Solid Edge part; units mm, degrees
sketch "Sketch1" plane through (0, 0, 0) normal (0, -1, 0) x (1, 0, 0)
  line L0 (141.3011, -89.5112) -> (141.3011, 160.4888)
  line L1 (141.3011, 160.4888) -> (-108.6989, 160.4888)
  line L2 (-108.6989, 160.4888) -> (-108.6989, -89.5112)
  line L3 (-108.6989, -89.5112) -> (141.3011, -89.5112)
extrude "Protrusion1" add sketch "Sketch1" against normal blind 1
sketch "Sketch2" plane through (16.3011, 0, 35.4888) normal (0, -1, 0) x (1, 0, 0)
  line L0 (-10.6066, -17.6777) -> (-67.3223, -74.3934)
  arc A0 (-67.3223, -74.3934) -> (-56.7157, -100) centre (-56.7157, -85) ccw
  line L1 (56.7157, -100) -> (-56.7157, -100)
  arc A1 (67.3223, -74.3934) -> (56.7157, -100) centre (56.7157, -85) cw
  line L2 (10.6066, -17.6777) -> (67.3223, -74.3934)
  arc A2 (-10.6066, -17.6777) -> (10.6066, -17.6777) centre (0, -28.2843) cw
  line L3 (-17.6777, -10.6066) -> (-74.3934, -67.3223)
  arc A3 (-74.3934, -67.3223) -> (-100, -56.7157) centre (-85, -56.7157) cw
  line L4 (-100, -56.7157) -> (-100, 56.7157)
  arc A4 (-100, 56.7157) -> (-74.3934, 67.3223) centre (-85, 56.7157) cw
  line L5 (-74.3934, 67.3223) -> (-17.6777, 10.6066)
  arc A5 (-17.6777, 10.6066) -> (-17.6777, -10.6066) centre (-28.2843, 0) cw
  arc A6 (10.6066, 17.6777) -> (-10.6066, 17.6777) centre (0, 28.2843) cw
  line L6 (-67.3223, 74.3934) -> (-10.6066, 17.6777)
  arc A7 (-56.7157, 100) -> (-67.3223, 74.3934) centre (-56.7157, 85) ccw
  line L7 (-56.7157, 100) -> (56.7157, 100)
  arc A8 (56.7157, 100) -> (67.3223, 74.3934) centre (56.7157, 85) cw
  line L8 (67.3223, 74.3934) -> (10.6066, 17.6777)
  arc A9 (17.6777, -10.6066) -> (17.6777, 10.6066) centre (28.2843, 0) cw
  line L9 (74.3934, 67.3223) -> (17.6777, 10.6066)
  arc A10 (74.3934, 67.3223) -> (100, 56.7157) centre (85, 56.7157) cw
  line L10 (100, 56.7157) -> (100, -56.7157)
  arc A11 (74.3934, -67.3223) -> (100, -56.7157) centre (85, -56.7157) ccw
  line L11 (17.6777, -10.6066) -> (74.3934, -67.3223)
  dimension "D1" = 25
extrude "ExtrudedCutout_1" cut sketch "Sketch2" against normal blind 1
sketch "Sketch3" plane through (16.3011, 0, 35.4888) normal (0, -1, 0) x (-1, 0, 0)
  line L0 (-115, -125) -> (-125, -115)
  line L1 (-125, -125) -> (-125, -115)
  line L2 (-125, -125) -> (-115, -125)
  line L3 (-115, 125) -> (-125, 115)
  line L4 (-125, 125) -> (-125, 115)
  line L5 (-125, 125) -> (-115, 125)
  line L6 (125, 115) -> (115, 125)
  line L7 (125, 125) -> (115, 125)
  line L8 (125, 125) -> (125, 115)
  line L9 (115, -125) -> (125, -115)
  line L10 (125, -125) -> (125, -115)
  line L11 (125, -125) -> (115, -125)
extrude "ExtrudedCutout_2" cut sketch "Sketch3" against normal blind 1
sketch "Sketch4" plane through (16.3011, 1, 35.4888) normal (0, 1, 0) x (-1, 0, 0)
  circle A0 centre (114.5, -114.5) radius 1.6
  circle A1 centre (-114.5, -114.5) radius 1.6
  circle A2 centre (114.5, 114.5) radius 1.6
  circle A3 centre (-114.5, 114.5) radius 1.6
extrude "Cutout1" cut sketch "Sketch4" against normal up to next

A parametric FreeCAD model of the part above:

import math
import FreeCAD as App
import Part
import Sketcher

V = App.Vector

doc = App.newDocument("Part")
params = doc.addObject("Spreadsheet::Sheet", "Params")
for row, (alias, value) in enumerate([
    ("sketch1_width", "250 mm"),
    ("pad1_length", "1 mm"),
    ("sketch2_radius", "15 mm"),
    ("pocket1_length", "1 mm"),
    ("sketch3_width", "10 mm"),
    ("pocket2_length", "1 mm"),
    ("sketch4_diameter", "3.2 mm"),
    ("pocket3_length", "1 mm"),
], start=1):
    params.set(f"A{row}", alias)
    params.set(f"B{row}", "=" + value)
    params.setAlias(f"B{row}", alias)

body = doc.addObject("PartDesign::Body", "Body")

# Sketch on XZ plane
sketch1 = body.newObject("Sketcher::SketchObject", "Sketch")
sketch1.AttachmentSupport = (doc.getObject("XZ_Plane"), [""])
sketch1.MapMode = "FlatFace"
sketch1.addGeometry([
    Part.LineSegment(V(-109, -90, 0), V(141, -90, 0)),
    Part.LineSegment(V(141, -90, 0), V(141, 160, 0)),
    Part.LineSegment(V(141, 160, 0), V(-109, 160, 0)),
    Part.LineSegment(V(-109, 160, 0), V(-109, -90, 0)),
], False)
sketch1.addConstraint([
    Sketcher.Constraint("Coincident", 0, 2, 1, 1),
    Sketcher.Constraint("Coincident", 1, 2, 2, 1),
    Sketcher.Constraint("Coincident", 2, 2, 3, 1),
    Sketcher.Constraint("Coincident", 3, 2, 0, 1),
    Sketcher.Constraint("Horizontal", 0),
    Sketcher.Constraint("Vertical", 1),
    Sketcher.Constraint("Horizontal", 2),
    Sketcher.Constraint("Vertical", 3),
    Sketcher.Constraint("Equal", 2, 1),
    Sketcher.Constraint("DistanceX", 0, 1, 0, 2, 250.0),
    Sketcher.Constraint("DistanceX", -1, 1, 0, 2, 141.301),
    Sketcher.Constraint("DistanceY", 0, 2, -1, 1, 89.5112),
])
sketch1.setExpression("Constraints[9]", "Params.sketch1_width")
pad1 = body.newObject("PartDesign::Pad", "Pad")
pad1.Profile = sketch1
pad1.setExpression("Length", "Params.pad1_length")
pad1.Reversed = True

# Sketch on XZ plane
sketch2 = body.newObject("Sketcher::SketchObject", "Sketch001")
sketch2.AttachmentSupport = (doc.getObject("XZ_Plane"), [""])
sketch2.MapMode = "FlatFace"
sketch2.addGeometry([
    Part.ArcOfCircle(Part.Circle(V(16, 7, 0), V(0, 0, 1), 15), math.radians(45), math.radians(135)),  # 0
    Part.LineSegment(V(6, 18, 0), V(-51, -39, 0)),  # 1
    Part.ArcOfCircle(Part.Circle(V(-40, -50, 0), V(0, 0, 1), 15), math.radians(135), math.radians(270)),  # 2
    Part.LineSegment(V(-40, -65, 0), V(73, -65, 0)),  # 3
    Part.ArcOfCircle(Part.Circle(V(73, -50, 0), V(0, 0, 1), 15), math.radians(-90), math.radians(45)),  # 4
    Part.LineSegment(V(84, -39, 0), V(27, 18, 0)),  # 5
    Part.LineSegment(V(-58, -32, 0), V(-1, 25, 0)),  # 6
    Part.ArcOfCircle(Part.Circle(V(-12, 35, 0), V(0, 0, 1), 15), math.radians(-45), math.radians(45)),  # 7
    Part.LineSegment(V(-1, 46, 0), V(-58, 103, 0)),  # 8
    Part.ArcOfCircle(Part.Circle(V(-69, 92, 0), V(0, 0, 1), 15), math.radians(45), math.radians(180)),  # 9
    Part.LineSegment(V(-84, 92, 0), V(-84, -21, 0)),  # 10
    Part.ArcOfCircle(Part.Circle(V(-69, -21, 0), V(0, 0, 1), 15), math.radians(180), math.radians(315)),  # 11
    Part.ArcOfCircle(Part.Circle(V(16, 64, 0), V(0, 0, 1), 15), math.radians(-135), math.radians(-45)),  # 12
    Part.LineSegment(V(27, 53, 0), V(84, 110, 0)),  # 13
    Part.ArcOfCircle(Part.Circle(V(73, 120, 0), V(0, 0, 1), 15), math.radians(-45), math.radians(90)),  # 14
    Part.LineSegment(V(73, 135, 0), V(-40, 135, 0)),  # 15
    Part.ArcOfCircle(Part.Circle(V(-40, 120, 0), V(0, 0, 1), 15), math.radians(90), math.radians(225)),  # 16
    Part.LineSegment(V(-51, 110, 0), V(6, 53, 0)),  # 17
    Part.ArcOfCircle(Part.Circle(V(45, 35, 0), V(0, 0, 1), 15), math.radians(135), math.radians(225)),  # 18
    Part.LineSegment(V(34, 25, 0), V(91, -32, 0)),  # 19
    Part.ArcOfCircle(Part.Circle(V(101, -21, 0), V(0, 0, 1), 15), math.radians(-135), math.radians(0)),  # 20
    Part.LineSegment(V(116, -21, 0), V(116, 92, 0)),  # 21
    Part.ArcOfCircle(Part.Circle(V(101, 92, 0), V(0, 0, 1), 15), math.radians(0), math.radians(135)),  # 22
    Part.LineSegment(V(91, 103, 0), V(34, 46, 0)),  # 23
], False)
sketch2.addConstraint([
    Sketcher.Constraint("Tangent", 0, 2, 1, 1),
    Sketcher.Constraint("Tangent", 1, 2, 2, 1),
    Sketcher.Constraint("Tangent", 2, 2, 3, 1),
    Sketcher.Constraint("Tangent", 3, 2, 4, 1),
    Sketcher.Constraint("Tangent", 4, 2, 5, 1),
    Sketcher.Constraint("Tangent", 5, 2, 0, 1),
    Sketcher.Constraint("Tangent", 6, 2, 7, 1),
    Sketcher.Constraint("Tangent", 7, 2, 8, 1),
    Sketcher.Constraint("Tangent", 8, 2, 9, 1),
    Sketcher.Constraint("Tangent", 9, 2, 10, 1),
    Sketcher.Constraint("Tangent", 10, 2, 11, 1),
    Sketcher.Constraint("Tangent", 11, 2, 6, 1),
    Sketcher.Constraint("Tangent", 12, 2, 13, 1),
    Sketcher.Constraint("Tangent", 13, 2, 14, 1),
    Sketcher.Constraint("Tangent", 14, 2, 15, 1),
    Sketcher.Constraint("Tangent", 15, 2, 16, 1),
    Sketcher.Constraint("Tangent", 16, 2, 17, 1),
    Sketcher.Constraint("Tangent", 17, 2, 12, 1),
    Sketcher.Constraint("Tangent", 18, 2, 19, 1),
    Sketcher.Constraint("Tangent", 19, 2, 20, 1),
    Sketcher.Constraint("Tangent", 20, 2, 21, 1),
    Sketcher.Constraint("Tangent", 21, 2, 22, 1),
    Sketcher.Constraint("Tangent", 22, 2, 23, 1),
    Sketcher.Constraint("Tangent", 23, 2, 18, 1),
    Sketcher.Constraint("Horizontal", 3),
    Sketcher.Constraint("Vertical", 10),
    Sketcher.Constraint("Horizontal", 15),
    Sketcher.Constraint("Vertical", 21),
    Sketcher.Constraint("Equal", 0, 2),
    Sketcher.Constraint("Equal", 2, 4),
    Sketcher.Constraint("Equal", 4, 7),
    Sketcher.Constraint("Equal", 7, 9),
    Sketcher.Constraint("Equal", 9, 11),
    Sketcher.Constraint("Equal", 11, 12),
    Sketcher.Constraint("Equal", 12, 14),
    Sketcher.Constraint("Equal", 14, 16),
    Sketcher.Constraint("Equal", 16, 18),
    Sketcher.Constraint("Equal", 18, 20),
    Sketcher.Constraint("Equal", 20, 22),
    Sketcher.Constraint("Perpendicular", 1, 5),
    Sketcher.Constraint("Perpendicular", 5, 6),
    Sketcher.Constraint("Perpendicular", 6, 8),
    Sketcher.Constraint("Perpendicular", 8, 13),
    Sketcher.Constraint("Perpendicular", 13, 17),
    Sketcher.Constraint("Parallel", 17, 19),
    Sketcher.Constraint("Perpendicular", 19, 23),
    Sketcher.Constraint("Horizontal", 7, 3, 18, 3),
    Sketcher.Constraint("Horizontal", 11, 3, 20, 3),
    Sketcher.Constraint("Horizontal", 9, 3, 22, 3),
    Sketcher.Constraint("Vertical", 0, 3, 12, 3),
    Sketcher.Constraint("Vertical", 4, 3, 14, 3),
    Sketcher.Constraint("Equal", 15, 10),
    Sketcher.Constraint("Radius", 0, 15.0),
    Sketcher.Constraint("DistanceY", 2, 3, 7, 3, 85.0),
    Sketcher.Constraint("DistanceX", 7, 3, 4, 3, 85.0),
    Sketcher.Constraint("DistanceY", 11, 3, 12, 3, 85.0),
    Sketcher.Constraint("DistanceX", 0, 3, 20, 3, 85.0),
    Sketcher.Constraint("Distance", 1, 80.208),
    Sketcher.Constraint("DistanceX", -1, 1, 0, 3, 16.301),
    Sketcher.Constraint("DistanceY", 11, 3, -1, 1, 21.227),
])
sketch2.setExpression("Constraints[52]", "Params.sketch2_radius")
pocket1 = body.newObject("PartDesign::Pocket", "Pocket")
pocket1.Profile = sketch2
pocket1.setExpression("Length", "Params.pocket1_length")

# Sketch on XZ plane
sketch3 = body.newObject("Sketcher::SketchObject", "Sketch002")
sketch3.AttachmentSupport = (doc.getObject("XZ_Plane"), [""])
sketch3.MapMode = "FlatFace"
sketch3.addGeometry([
    Part.LineSegment(V(141, 160, 0), V(131, 160, 0)),  # 0
    Part.LineSegment(V(131, 160, 0), V(141, 150, 0)),  # 1
    Part.LineSegment(V(141, 150, 0), V(141, 160, 0)),  # 2
    Part.LineSegment(V(141, -80, 0), V(131, -90, 0)),  # 3
    Part.LineSegment(V(131, -90, 0), V(141, -90, 0)),  # 4
    Part.LineSegment(V(141, -90, 0), V(141, -80, 0)),  # 5
    Part.LineSegment(V(-99, -90, 0), V(-109, -80, 0)),  # 6
    Part.LineSegment(V(-109, -80, 0), V(-109, -90, 0)),  # 7
    Part.LineSegment(V(-109, -90, 0), V(-99, -90, 0)),  # 8
    Part.LineSegment(V(-109, 150, 0), V(-99, 160, 0)),  # 9
    Part.LineSegment(V(-99, 160, 0), V(-109, 160, 0)),  # 10
    Part.LineSegment(V(-109, 160, 0), V(-109, 150, 0)),  # 11
], False)
sketch3.addConstraint([
    Sketcher.Constraint("Coincident", 0, 2, 1, 1),
    Sketcher.Constraint("Coincident", 1, 2, 2, 1),
    Sketcher.Constraint("Coincident", 2, 2, 0, 1),
    Sketcher.Constraint("Coincident", 3, 2, 4, 1),
    Sketcher.Constraint("Coincident", 4, 2, 5, 1),
    Sketcher.Constraint("Coincident", 5, 2, 3, 1),
    Sketcher.Constraint("Coincident", 6, 2, 7, 1),
    Sketcher.Constraint("Coincident", 7, 2, 8, 1),
    Sketcher.Constraint("Coincident", 8, 2, 6, 1),
    Sketcher.Constraint("Coincident", 9, 2, 10, 1),
    Sketcher.Constraint("Coincident", 10, 2, 11, 1),
    Sketcher.Constraint("Coincident", 11, 2, 9, 1),
    Sketcher.Constraint("Horizontal", 0),
    Sketcher.Constraint("Vertical", 2),
    Sketcher.Constraint("Horizontal", 4),
    Sketcher.Constraint("Vertical", 5),
    Sketcher.Constraint("Vertical", 7),
    Sketcher.Constraint("Horizontal", 8),
    Sketcher.Constraint("Horizontal", 10),
    Sketcher.Constraint("Vertical", 11),
    Sketcher.Constraint("Perpendicular", 1, 3),
    Sketcher.Constraint("Perpendicular", 3, 6),
    Sketcher.Constraint("Perpendicular", 6, 9),
    Sketcher.Constraint("Horizontal", 5, 2, 6, 2),
    Sketcher.Constraint("Horizontal", 4, 2, 7, 2),
    Sketcher.Constraint("Horizontal", 2, 2, 9, 2),
    Sketcher.Constraint("Horizontal", 1, 2, 11, 2),
    Sketcher.Constraint("Vertical", 0, 2, 3, 2),
    Sketcher.Constraint("Vertical", 2, 2, 4, 2),
    Sketcher.Constraint("Vertical", 8, 2, 9, 2),
    Sketcher.Constraint("Vertical", 7, 2, 10, 2),
    Sketcher.Constraint("DistanceX", 0, 2, 0, 1, 10.0),
    Sketcher.Constraint("DistanceY", 3, 2, 1, 2, 240.0),
    Sketcher.Constraint("DistanceX", 6, 2, 3, 2, 240.0),
    Sketcher.Constraint("DistanceX", -1, 1, 0, 2, 131.301),
    Sketcher.Constraint("DistanceY", -1, 1, 0, 2, 160.4888),
])
sketch3.setExpression("Constraints[31]", "Params.sketch3_width")
pocket2 = body.newObject("PartDesign::Pocket", "Pocket001")
pocket2.Profile = sketch3
pocket2.setExpression("Length", "Params.pocket2_length")

# Sketch on XZ plane
sketch4 = body.newObject("Sketcher::SketchObject", "Sketch003")
sketch4.AttachmentSupport = (doc.getObject("XZ_Plane"), [""])
sketch4.MapMode = "FlatFace"
sketch4.AttachmentOffset = App.Placement(V(0, 0, -1), App.Rotation())
sketch4.addGeometry([
    Part.Circle(V(-98.2, -79, 0), V(0, 0, 1), 1.6),
    Part.Circle(V(130.8, -79, 0), V(0, 0, 1), 1.6),
    Part.Circle(V(-98.2, 150, 0), V(0, 0, 1), 1.6),
    Part.Circle(V(130.8, 150, 0), V(0, 0, 1), 1.6),
], False)
sketch4.addConstraint([
    Sketcher.Constraint("Equal", 0, 1),
    Sketcher.Constraint("Equal", 1, 2),
    Sketcher.Constraint("Equal", 2, 3),
    Sketcher.Constraint("Horizontal", 0, 3, 1, 3),
    Sketcher.Constraint("Horizontal", 2, 3, 3, 3),
    Sketcher.Constraint("Vertical", 0, 3, 2, 3),
    Sketcher.Constraint("Vertical", 1, 3, 3, 3),
    Sketcher.Constraint("Diameter", 0, 3.2),
    Sketcher.Constraint("DistanceX", 0, 3, 1, 3, 229.0),
    Sketcher.Constraint("DistanceY", 0, 3, 2, 3, 229.0),
    Sketcher.Constraint("DistanceX", 0, 3, -1, 1, 98.199),
    Sketcher.Constraint("DistanceY", 0, 3, -1, 1, 79.0112),
])
sketch4.setExpression("Constraints[7]", "Params.sketch4_diameter")
pocket3 = body.newObject("PartDesign::Pocket", "Pocket002")
pocket3.Profile = sketch4
pocket3.setExpression("Length", "Params.pocket3_length")
pocket3.Reversed = True

doc.recompute()
